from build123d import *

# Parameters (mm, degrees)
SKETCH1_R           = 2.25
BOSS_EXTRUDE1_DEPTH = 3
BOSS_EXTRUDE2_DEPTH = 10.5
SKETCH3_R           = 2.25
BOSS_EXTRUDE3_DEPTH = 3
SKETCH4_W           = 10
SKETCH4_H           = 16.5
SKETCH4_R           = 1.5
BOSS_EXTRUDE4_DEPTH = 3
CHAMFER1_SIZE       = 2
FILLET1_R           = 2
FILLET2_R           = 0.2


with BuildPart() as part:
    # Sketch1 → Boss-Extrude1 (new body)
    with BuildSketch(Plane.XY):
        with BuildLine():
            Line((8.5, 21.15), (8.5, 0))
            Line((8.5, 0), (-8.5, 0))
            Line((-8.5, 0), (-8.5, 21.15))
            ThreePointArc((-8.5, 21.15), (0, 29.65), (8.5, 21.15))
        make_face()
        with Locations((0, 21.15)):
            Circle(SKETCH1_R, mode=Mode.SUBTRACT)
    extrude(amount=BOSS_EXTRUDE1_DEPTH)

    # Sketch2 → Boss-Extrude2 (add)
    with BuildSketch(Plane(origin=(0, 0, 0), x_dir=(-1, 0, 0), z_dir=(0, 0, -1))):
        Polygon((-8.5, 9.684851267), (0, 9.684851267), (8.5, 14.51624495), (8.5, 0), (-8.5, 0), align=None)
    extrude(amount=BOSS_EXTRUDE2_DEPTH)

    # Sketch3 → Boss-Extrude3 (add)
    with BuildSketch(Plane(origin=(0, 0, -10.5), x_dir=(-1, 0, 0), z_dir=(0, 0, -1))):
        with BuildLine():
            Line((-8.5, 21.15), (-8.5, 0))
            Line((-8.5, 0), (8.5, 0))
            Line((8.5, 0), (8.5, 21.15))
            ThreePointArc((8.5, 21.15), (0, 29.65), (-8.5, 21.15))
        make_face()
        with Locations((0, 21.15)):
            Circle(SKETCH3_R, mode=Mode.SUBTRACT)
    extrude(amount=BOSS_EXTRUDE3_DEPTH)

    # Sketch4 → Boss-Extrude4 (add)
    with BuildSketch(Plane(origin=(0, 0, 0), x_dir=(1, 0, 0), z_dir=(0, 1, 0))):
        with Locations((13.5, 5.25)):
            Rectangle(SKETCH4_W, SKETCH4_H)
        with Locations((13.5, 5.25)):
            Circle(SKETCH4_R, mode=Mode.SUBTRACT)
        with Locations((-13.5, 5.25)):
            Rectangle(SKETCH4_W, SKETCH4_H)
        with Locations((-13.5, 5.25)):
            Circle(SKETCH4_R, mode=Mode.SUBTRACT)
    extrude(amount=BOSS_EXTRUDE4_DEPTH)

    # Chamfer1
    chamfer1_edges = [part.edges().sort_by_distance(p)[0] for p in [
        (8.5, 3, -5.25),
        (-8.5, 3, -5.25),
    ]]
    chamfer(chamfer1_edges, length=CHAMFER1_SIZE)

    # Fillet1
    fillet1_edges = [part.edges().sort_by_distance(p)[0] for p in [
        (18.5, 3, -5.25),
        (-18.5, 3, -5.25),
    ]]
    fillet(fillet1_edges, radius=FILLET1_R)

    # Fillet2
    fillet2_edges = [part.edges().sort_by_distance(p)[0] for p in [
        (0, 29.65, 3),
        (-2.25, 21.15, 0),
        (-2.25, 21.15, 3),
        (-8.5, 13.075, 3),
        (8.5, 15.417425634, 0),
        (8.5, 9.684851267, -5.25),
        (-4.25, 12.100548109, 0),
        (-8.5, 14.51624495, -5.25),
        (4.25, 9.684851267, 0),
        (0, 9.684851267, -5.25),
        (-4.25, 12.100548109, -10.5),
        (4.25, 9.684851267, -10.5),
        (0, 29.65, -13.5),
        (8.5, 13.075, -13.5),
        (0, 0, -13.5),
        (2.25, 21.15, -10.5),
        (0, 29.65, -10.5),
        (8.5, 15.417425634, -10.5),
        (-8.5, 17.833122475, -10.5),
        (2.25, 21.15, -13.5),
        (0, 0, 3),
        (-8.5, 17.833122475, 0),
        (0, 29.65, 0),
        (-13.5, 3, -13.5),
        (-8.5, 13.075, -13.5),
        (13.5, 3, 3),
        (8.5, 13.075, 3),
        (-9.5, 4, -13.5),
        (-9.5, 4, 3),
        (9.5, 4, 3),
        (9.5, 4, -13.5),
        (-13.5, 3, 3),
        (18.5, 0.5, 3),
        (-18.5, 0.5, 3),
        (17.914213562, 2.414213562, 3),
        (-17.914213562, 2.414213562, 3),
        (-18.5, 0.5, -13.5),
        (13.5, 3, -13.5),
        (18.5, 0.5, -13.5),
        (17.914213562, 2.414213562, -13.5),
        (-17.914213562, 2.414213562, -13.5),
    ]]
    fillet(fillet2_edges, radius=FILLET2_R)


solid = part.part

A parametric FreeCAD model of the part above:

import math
import FreeCAD as App
import Part
import Sketcher


def edges_at(feature, points):
    """Names of the edges that pass closest to the given points."""
    edges = feature.Shape.Edges
    near = lambda p: min(range(len(edges)), key=lambda i: edges[i].distToShape(Part.Vertex(*p))[0])
    return sorted({f"Edge{near(p) + 1}" for p in points})

doc = App.newDocument("Part")
body = doc.addObject("PartDesign::Body", "Body")

# Sketch on XY plane
sketch1 = body.newObject("Sketcher::SketchObject", "Sketch")
sketch1.AttachmentSupport = (doc.getObject("XY_Plane"), [""])
sketch1.MapMode = "FlatFace"
sketch1.addGeometry(Part.LineSegment(App.Vector(8.5, 0, 0), App.Vector(8.5, 21.1, 0)), False)
sketch1.addGeometry(Part.ArcOfCircle(Part.Circle(App.Vector(0, 21.1, 0), App.Vector(0, 0, 1), 8.5), math.radians(0), math.radians(180)), False)
sketch1.addGeometry(Part.LineSegment(App.Vector(-8.5, 21.1, 0), App.Vector(-8.5, 0, 0)), False)
sketch1.addGeometry(Part.LineSegment(App.Vector(-8.5, 0, 0), App.Vector(8.5, 0, 0)), False)
sketch1.addGeometry(Part.Circle(App.Vector(0, 21.1, 0), App.Vector(0, 0, 1), 2.2), False)
sketch1.addConstraint(Sketcher.Constraint("Tangent", 0, 2, 1, 1))
sketch1.addConstraint(Sketcher.Constraint("Tangent", 1, 2, 2, 1))
sketch1.addConstraint(Sketcher.Constraint("Coincident", 2, 2, 3, 1))
sketch1.addConstraint(Sketcher.Constraint("Coincident", 3, 2, 0, 1))
sketch1.addConstraint(Sketcher.Constraint("Vertical", 0))
sketch1.addConstraint(Sketcher.Constraint("Vertical", 2))
sketch1.addConstraint(Sketcher.Constraint("Horizontal", 3))
sketch1.addConstraint(Sketcher.Constraint("Coincident", 4, 3, 1, 3))
sketch1.addConstraint(Sketcher.Constraint("Symmetric", 2, 2, 3, 2, -1, 1))
sketch1.addConstraint(Sketcher.Constraint("Diameter", 4, 4.5))
sketch1.addConstraint(Sketcher.Constraint("Radius", 1, 8.5))
sketch1.addConstraint(Sketcher.Constraint("DistanceY", 0, 1, 0, 2, 21.15))
pad1 = body.newObject("PartDesign::Pad", "Pad")
pad1.Profile = sketch1
pad1.Length = 3

# Sketch on XY plane
sketch2 = body.newObject("Sketcher::SketchObject", "Sketch001")
sketch2.AttachmentSupport = (doc.getObject("XY_Plane"), [""])
sketch2.MapMode = "FlatFace"
sketch2.addGeometry(Part.LineSegment(App.Vector(0, 10, 0), App.Vector(8, 10, 0)), False)
sketch2.addGeometry(Part.LineSegment(App.Vector(8, 10, 0), App.Vector(8, 0, 0)), False)
sketch2.addGeometry(Part.LineSegment(App.Vector(8, 0, 0), App.Vector(-8, 0, 0)), False)
sketch2.addGeometry(Part.LineSegment(App.Vector(-8, 0, 0), App.Vector(-8, 15, 0)), False)
sketch2.addGeometry(Part.LineSegment(App.Vector(-8, 15, 0), App.Vector(0, 10, 0)), False)
sketch2.addConstraint(Sketcher.Constraint("Coincident", 0, 2, 1, 1))
sketch2.addConstraint(Sketcher.Constraint("Coincident", 1, 2, 2, 1))
sketch2.addConstraint(Sketcher.Constraint("Coincident", 2, 2, 3, 1))
sketch2.addConstraint(Sketcher.Constraint("Coincident", 3, 2, 4, 1))
sketch2.addConstraint(Sketcher.Constraint("Coincident", 4, 2, 0, 1))
sketch2.addConstraint(Sketcher.Constraint("Horizontal", 0))
sketch2.addConstraint(Sketcher.Constraint("Vertical", 1))
sketch2.addConstraint(Sketcher.Constraint("Horizontal", 2))
sketch2.addConstraint(Sketcher.Constraint("Vertical", 3))
sketch2.addConstraint(Sketcher.Constraint("Symmetric", 1, 2, 2, 2, -1, 1))
sketch2.addConstraint(Sketcher.Constraint("PointOnObject", 4, 2, -2))
sketch2.addConstraint(Sketcher.Constraint("DistanceX", 2, 2, 2, 1, 17.0))
sketch2.addConstraint(Sketcher.Constraint("DistanceY", 1, 2, 1, 1, 9.684851))
sketch2.addConstraint(Sketcher.Constraint("DistanceY", 3, 1, 3, 2, 14.516245))
pad2 = body.newObject("PartDesign::Pad", "Pad001")
pad2.Profile = sketch2
pad2.Length = 10.5
pad2.Reversed = True

# Sketch on XY plane
sketch3 = body.newObject("Sketcher::SketchObject", "Sketch002")
sketch3.AttachmentSupport = (doc.getObject("XY_Plane"), [""])
sketch3.MapMode = "FlatFace"
sketch3.AttachmentOffset = App.Placement(App.Vector(0, 0, -10.5), App.Rotation())
sketch3.addGeometry(Part.LineSegment(App.Vector(8.5, 21.1, 0), App.Vector(8.5, 0, 0)), False)
sketch3.addGeometry(Part.LineSegment(App.Vector(8.5, 0, 0), App.Vector(-8.5, 0, 0)), False)
sketch3.addGeometry(Part.LineSegment(App.Vector(-8.5, 0, 0), App.Vector(-8.5, 21.1, 0)), False)
sketch3.addGeometry(Part.ArcOfCircle(Part.Circle(App.Vector(0, 21.1, 0), App.Vector(0, 0, 1), 8.5), math.radians(0), math.radians(180)), False)
sketch3.addGeometry(Part.Circle(App.Vector(0, 21.1, 0), App.Vector(0, 0, 1), 2.2), False)
sketch3.addConstraint(Sketcher.Constraint("Coincident", 0, 2, 1, 1))
sketch3.addConstraint(Sketcher.Constraint("Coincident", 1, 2, 2, 1))
sketch3.addConstraint(Sketcher.Constraint("Tangent", 2, 2, 3, 2))
sketch3.addConstraint(Sketcher.Constraint("Tangent", 3, 1, 0, 1))
sketch3.addConstraint(Sketcher.Constraint("Vertical", 0))
sketch3.addConstraint(Sketcher.Constraint("Horizontal", 1))
sketch3.addConstraint(Sketcher.Constraint("Vertical", 2))
sketch3.addConstraint(Sketcher.Constraint("Coincident", 4, 3, 3, 3))
sketch3.addConstraint(Sketcher.Constraint("Symmetric", 0, 2, 1, 2, -1, 1))
sketch3.addConstraint(Sketcher.Constraint("Diameter", 4, 4.5))
sketch3.addConstraint(Sketcher.Constraint("Radius", 3, 8.5))
sketch3.addConstraint(Sketcher.Constraint("DistanceY", 0, 2, 0, 1, 21.15))
pad3 = body.newObject("PartDesign::Pad", "Pad002")
pad3.Profile = sketch3
pad3.Length = 3
pad3.Reversed = True

# Sketch on XZ plane
sketch4 = body.newObject("Sketcher::SketchObject", "Sketch003")
sketch4.AttachmentSupport = (doc.getObject("XZ_Plane"), [""])
sketch4.MapMode = "FlatFace"
sketch4.addGeometry(Part.LineSegment(App.Vector(8.5, -13.5, 0), App.Vector(8.5, 3, 0)), False)
sketch4.addGeometry(Part.LineSegment(App.Vector(8.5, 3, 0), App.Vector(18.5, 3, 0)), False)
sketch4.addGeometry(Part.LineSegment(App.Vector(18.5, 3, 0), App.Vector(18.5, -13.5, 0)), False)
sketch4.addGeometry(Part.LineSegment(App.Vector(18.5, -13.5, 0), App.Vector(8.5, -13.5, 0)), False)
sketch4.addGeometry(Part.Circle(App.Vector(13.5, -5.2, 0), App.Vector(0, 0, 1), 1.5), False)
sketch4.addGeometry(Part.LineSegment(App.Vector(-18.5, -13.5, 0), App.Vector(-18.5, 3, 0)), False)
sketch4.addGeometry(Part.LineSegment(App.Vector(-18.5, 3, 0), App.Vector(-8.5, 3, 0)), False)
sketch4.addGeometry(Part.LineSegment(App.Vector(-8.5, 3, 0), App.Vector(-8.5, -13.5, 0)), False)
sketch4.addGeometry(Part.LineSegment(App.Vector(-8.5, -13.5, 0), App.Vector(-18.5, -13.5, 0)), False)
sketch4.addGeometry(Part.Circle(App.Vector(-13.5, -5.2, 0), App.Vector(0, 0, 1), 1.5), False)
sketch4.addConstraint(Sketcher.Constraint("Coincident", 0, 2, 1, 1))
sketch4.addConstraint(Sketcher.Constraint("Coincident", 1, 2, 2, 1))
sketch4.addConstraint(Sketcher.Constraint("Coincident", 2, 2, 3, 1))
sketch4.addConstraint(Sketcher.Constraint("Coincident", 3, 2, 0, 1))
sketch4.addConstraint(Sketcher.Constraint("Coincident", 5, 2, 6, 1))
sketch4.addConstraint(Sketcher.Constraint("Coincident", 6, 2, 7, 1))
sketch4.addConstraint(Sketcher.Constraint("Coincident", 7, 2, 8, 1))
sketch4.addConstraint(Sketcher.Constraint("Coincident", 8, 2, 5, 1))
sketch4.addConstraint(Sketcher.Constraint("Vertical", 0))
sketch4.addConstraint(Sketcher.Constraint("Horizontal", 1))
sketch4.addConstraint(Sketcher.Constraint("Vertical", 2))
sketch4.addConstraint(Sketcher.Constraint("Horizontal", 3))
sketch4.addConstraint(Sketcher.Constraint("Vertical", 5))
sketch4.addConstraint(Sketcher.Constraint("Horizontal", 6))
sketch4.addConstraint(Sketcher.Constraint("Vertical", 7))
sketch4.addConstraint(Sketcher.Constraint("Horizontal", 8))
sketch4.addConstraint(Sketcher.Constraint("Equal", 4, 9))
sketch4.addConstraint(Sketcher.Constraint("Symmetric", 4, 3, 9, 3, -2))
sketch4.addConstraint(Sketcher.Constraint("Symmetric", 1, 2, 5, 2, -2))
sketch4.addConstraint(Sketcher.Constraint("Symmetric", 3, 2, 7, 2, -2))
sketch4.addConstraint(Sketcher.Constraint("Diameter", 4, 3.0))
sketch4.addConstraint(Sketcher.Constraint("DistanceX", 1, 1, 1, 2, 10.0))
sketch4.addConstraint(Sketcher.Constraint("DistanceY", 0, 1, 0, 2, 16.5))
sketch4.addConstraint(Sketcher.Constraint("DistanceY", -1, 1, 0, 2, 3.0))
sketch4.addConstraint(Sketcher.Constraint("DistanceX", 9, 3, 4, 3, 27.0))
sketch4.addConstraint(Sketcher.Constraint("DistanceX", 0, 2, 4, 3, 5.0))
sketch4.addConstraint(Sketcher.Constraint("DistanceY", 4, 3, -1, 1, 5.25))
pad4 = body.newObject("PartDesign::Pad", "Pad003")
pad4.Profile = sketch4
pad4.Length = 3
pad4.Reversed = True
doc.recompute()

chamfer = body.newObject("PartDesign::Chamfer", "Chamfer")
chamfer.Base = (pad4, edges_at(pad4, [(8.5, 3, -5.25), (-8.5, 3, -5.25)]))
chamfer.Size = 2
doc.recompute()

fillet = body.newObject("PartDesign::Fillet", "Fillet")
fillet.Base = (chamfer, edges_at(chamfer, [(18.5, 3, -5.25), (-18.5, 3, -5.25)]))
fillet.Radius = 2
doc.recompute()

fillet2 = body.newObject("PartDesign::Fillet", "Fillet001")
fillet2.Base = (fillet, edges_at(fillet, [
    (0, 29.65, 3),
    (-2.25, 21.15, 0),
    (-2.25, 21.15, 3),
    (-8.5, 13.075, 3),
    (8.5, 15.417, 0),
    (8.5, 9.685, -5.25),
    (-4.25, 12.101, 0),
    (-8.5, 14.516, -5.25),
    (4.25, 9.685, 0),
    (0, 9.685, -5.25),
    (-4.25, 12.101, -10.5),
    (4.25, 9.685, -10.5),
    (0, 29.65, -13.5),
    (8.5, 13.075, -13.5),
    (0, 0, -13.5),
    (2.25, 21.15, -10.5),
    (0, 29.65, -10.5),
    (8.5, 15.417, -10.5),
    (-8.5, 17.833, -10.5),
    (2.25, 21.15, -13.5),
    (0, 0, 3),
    (-8.5, 17.833, 0),
    (0, 29.65, 0),
    (-13.5, 3, -13.5),
    (-8.5, 13.075, -13.5),
    (13.5, 3, 3),
    (8.5, 13.075, 3),
    (-9.5, 4, -13.5),
    (-9.5, 4, 3),
    (9.5, 4, 3),
    (9.5, 4, -13.5),
    (-13.5, 3, 3),
    (18.5, 0.5, 3),
    (-18.5, 0.5, 3),
    (17.914, 2.414, 3),
    (-17.914, 2.414, 3),
    (-18.5, 0.5, -13.5),
    (13.5, 3, -13.5),
    (18.5, 0.5, -13.5),
    (17.914, 2.414, -13.5),
    (-17.914, 2.414, -13.5),
]))
fillet2.Radius = 0.2

doc.recompute()
